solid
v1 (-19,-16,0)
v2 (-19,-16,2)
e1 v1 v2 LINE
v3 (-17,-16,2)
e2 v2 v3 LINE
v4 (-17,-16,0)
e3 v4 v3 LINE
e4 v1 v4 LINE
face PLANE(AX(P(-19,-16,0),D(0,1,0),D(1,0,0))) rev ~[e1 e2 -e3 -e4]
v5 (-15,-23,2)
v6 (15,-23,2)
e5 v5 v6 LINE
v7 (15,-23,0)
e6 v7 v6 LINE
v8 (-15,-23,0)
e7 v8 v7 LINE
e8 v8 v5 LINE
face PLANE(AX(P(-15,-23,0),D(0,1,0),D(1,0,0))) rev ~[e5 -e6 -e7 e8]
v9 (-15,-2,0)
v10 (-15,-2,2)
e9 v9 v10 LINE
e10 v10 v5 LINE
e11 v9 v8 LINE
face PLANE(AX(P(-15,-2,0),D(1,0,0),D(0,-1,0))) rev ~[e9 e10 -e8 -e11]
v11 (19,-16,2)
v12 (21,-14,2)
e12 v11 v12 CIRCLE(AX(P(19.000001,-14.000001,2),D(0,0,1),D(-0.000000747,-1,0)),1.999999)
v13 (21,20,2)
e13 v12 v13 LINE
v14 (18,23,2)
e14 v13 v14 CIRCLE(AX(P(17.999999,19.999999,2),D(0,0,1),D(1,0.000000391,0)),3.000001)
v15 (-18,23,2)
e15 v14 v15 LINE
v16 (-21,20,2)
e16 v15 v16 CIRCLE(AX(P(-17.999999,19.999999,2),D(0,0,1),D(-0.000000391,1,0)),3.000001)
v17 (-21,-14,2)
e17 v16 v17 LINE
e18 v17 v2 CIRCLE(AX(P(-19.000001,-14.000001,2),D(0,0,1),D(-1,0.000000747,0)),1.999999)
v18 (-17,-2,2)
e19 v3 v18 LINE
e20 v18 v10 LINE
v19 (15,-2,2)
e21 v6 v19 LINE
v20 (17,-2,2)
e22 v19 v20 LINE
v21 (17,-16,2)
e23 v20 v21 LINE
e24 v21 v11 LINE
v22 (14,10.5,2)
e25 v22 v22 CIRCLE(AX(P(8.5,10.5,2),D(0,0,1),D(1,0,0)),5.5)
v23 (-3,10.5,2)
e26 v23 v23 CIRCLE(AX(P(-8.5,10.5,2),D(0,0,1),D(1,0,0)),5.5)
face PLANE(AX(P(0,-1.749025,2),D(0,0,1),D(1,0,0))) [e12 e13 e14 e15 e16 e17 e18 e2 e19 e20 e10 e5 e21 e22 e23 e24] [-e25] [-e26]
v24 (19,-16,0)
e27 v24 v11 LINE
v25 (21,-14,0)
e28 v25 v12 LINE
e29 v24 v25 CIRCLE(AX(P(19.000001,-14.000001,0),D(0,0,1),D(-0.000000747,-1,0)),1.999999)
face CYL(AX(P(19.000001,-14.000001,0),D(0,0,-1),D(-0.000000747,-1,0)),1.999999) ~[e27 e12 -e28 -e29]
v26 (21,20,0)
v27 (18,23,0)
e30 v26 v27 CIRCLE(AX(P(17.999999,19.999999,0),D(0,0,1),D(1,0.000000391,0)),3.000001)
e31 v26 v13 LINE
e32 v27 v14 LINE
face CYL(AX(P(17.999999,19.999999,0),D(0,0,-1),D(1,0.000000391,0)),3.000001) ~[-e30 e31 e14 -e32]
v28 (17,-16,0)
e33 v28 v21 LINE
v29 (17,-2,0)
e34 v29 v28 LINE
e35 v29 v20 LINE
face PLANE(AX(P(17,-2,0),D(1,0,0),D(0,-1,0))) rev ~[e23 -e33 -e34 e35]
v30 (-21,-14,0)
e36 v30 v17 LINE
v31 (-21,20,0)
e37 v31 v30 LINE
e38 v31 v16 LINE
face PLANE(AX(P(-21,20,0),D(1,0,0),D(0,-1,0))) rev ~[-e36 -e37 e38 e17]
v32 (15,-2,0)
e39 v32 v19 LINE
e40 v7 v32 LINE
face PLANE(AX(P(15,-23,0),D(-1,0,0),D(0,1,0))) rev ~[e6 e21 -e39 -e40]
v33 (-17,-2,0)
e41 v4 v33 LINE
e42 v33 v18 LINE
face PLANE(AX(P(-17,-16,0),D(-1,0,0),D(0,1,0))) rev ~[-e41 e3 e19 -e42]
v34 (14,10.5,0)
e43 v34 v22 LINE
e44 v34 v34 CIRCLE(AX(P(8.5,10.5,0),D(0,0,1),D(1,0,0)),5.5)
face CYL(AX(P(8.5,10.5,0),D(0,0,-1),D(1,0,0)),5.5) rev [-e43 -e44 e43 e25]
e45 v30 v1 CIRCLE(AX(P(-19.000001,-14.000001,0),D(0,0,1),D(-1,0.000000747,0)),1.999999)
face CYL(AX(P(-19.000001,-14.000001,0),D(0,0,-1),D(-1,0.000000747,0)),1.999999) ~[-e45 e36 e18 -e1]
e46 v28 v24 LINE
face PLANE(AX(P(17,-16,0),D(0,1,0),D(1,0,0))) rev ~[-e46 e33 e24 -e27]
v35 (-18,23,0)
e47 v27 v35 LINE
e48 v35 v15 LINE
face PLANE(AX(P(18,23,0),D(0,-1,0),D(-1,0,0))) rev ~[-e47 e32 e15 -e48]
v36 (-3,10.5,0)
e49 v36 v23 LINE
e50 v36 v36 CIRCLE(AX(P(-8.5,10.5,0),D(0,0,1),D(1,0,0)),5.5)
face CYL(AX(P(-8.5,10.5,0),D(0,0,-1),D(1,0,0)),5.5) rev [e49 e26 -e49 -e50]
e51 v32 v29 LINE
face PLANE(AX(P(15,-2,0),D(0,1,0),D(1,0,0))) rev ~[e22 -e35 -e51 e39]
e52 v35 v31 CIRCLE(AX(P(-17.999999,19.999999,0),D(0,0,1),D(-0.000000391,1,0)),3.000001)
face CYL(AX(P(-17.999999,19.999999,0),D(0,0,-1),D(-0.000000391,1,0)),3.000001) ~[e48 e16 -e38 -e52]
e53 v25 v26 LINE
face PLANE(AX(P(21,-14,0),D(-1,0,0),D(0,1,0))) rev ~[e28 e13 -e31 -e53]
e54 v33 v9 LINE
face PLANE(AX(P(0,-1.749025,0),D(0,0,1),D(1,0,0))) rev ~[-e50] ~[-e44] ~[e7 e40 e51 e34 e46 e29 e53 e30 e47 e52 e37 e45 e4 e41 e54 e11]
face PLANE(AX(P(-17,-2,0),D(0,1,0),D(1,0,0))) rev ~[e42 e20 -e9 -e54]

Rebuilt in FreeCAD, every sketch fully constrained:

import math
import FreeCAD as App
import Part
import Sketcher

doc = App.newDocument("Part")
body = doc.addObject("PartDesign::Body", "Body")

# Sketch on XY plane
sketch1 = body.newObject("Sketcher::SketchObject", "Sketch")
sketch1.AttachmentSupport = (doc.getObject("XY_Plane"), [""])
sketch1.MapMode = "FlatFace"
sketch1.addGeometry([
    Part.ArcOfCircle(Part.Circle(App.Vector(-17.999999, 19.999999, 0), App.Vector(0, 0, 1), 3.000001), math.radians(90.000022), math.radians(179.999978)),  # 0
    Part.LineSegment(App.Vector(-21, 20, 0), App.Vector(-21, -14, 0)),  # 1
    Part.ArcOfCircle(Part.Circle(App.Vector(-19.000001, -14.000001, 0), App.Vector(0, 0, 1), 1.999999), math.radians(179.999957), math.radians(270.000043)),  # 2
    Part.LineSegment(App.Vector(-19, -16, 0), App.Vector(-17, -16, 0)),  # 3
    Part.LineSegment(App.Vector(-17, -16, 0), App.Vector(-17, -2, 0)),  # 4
    Part.LineSegment(App.Vector(-17, -2, 0), App.Vector(-15, -2, 0)),  # 5
    Part.LineSegment(App.Vector(-15, -2, 0), App.Vector(-15, -23, 0)),  # 6
    Part.LineSegment(App.Vector(-15, -23, 0), App.Vector(15, -23, 0)),  # 7
    Part.LineSegment(App.Vector(15, -23, 0), App.Vector(15, -2, 0)),  # 8
    Part.LineSegment(App.Vector(15, -2, 0), App.Vector(17, -2, 0)),  # 9
    Part.LineSegment(App.Vector(17, -2, 0), App.Vector(17, -16, 0)),  # 10
    Part.LineSegment(App.Vector(17, -16, 0), App.Vector(19, -16, 0)),  # 11
    Part.ArcOfCircle(Part.Circle(App.Vector(19.000001, -14.000001, 0), App.Vector(0, 0, 1), 1.999999), math.radians(-90.000043), math.radians(0.000043)),  # 12
    Part.LineSegment(App.Vector(21, -14, 0), App.Vector(21, 20, 0)),  # 13
    Part.ArcOfCircle(Part.Circle(App.Vector(17.999999, 19.999999, 0), App.Vector(0, 0, 1), 3.000001), math.radians(0.000022), math.radians(89.999978)),  # 14
    Part.LineSegment(App.Vector(18, 23, 0), App.Vector(-18, 23, 0)),  # 15
    Part.Circle(App.Vector(-8.5, 10.5, 0), App.Vector(0, 0, 1), 5.5),  # 16
    Part.Circle(App.Vector(8.5, 10.5, 0), App.Vector(0, 0, 1), 5.5),  # 17
], False)
sketch1.addConstraint([
    Sketcher.Constraint("Tangent", 0, 2, 1, 1),
    Sketcher.Constraint("Tangent", 1, 2, 2, 1),
    Sketcher.Constraint("Tangent", 2, 2, 3, 1),
    Sketcher.Constraint("Coincident", 3, 2, 4, 1),
    Sketcher.Constraint("Coincident", 4, 2, 5, 1),
    Sketcher.Constraint("Coincident", 5, 2, 6, 1),
    Sketcher.Constraint("Coincident", 6, 2, 7, 1),
    Sketcher.Constraint("Coincident", 7, 2, 8, 1),
    Sketcher.Constraint("Coincident", 8, 2, 9, 1),
    Sketcher.Constraint("Coincident", 9, 2, 10, 1),
    Sketcher.Constraint("Coincident", 10, 2, 11, 1),
    Sketcher.Constraint("Tangent", 11, 2, 12, 1),
    Sketcher.Constraint("Tangent", 12, 2, 13, 1),
    Sketcher.Constraint("Tangent", 13, 2, 14, 1),
    Sketcher.Constraint("Tangent", 14, 2, 15, 1),
    Sketcher.Constraint("Tangent", 15, 2, 0, 1),
    Sketcher.Constraint("Vertical", 1),
    Sketcher.Constraint("Horizontal", 3),
    Sketcher.Constraint("Vertical", 4),
    Sketcher.Constraint("Horizontal", 5),
    Sketcher.Constraint("Vertical", 6),
    Sketcher.Constraint("Horizontal", 7),
    Sketcher.Constraint("Vertical", 8),
    Sketcher.Constraint("Horizontal", 9),
    Sketcher.Constraint("Vertical", 10),
    Sketcher.Constraint("Horizontal", 11),
    Sketcher.Constraint("Vertical", 13),
    Sketcher.Constraint("Horizontal", 15),
    Sketcher.Constraint("Equal", 2, 12),
    Sketcher.Constraint("Equal", 0, 14),
    Sketcher.Constraint("Equal", 16, 17),
    Sketcher.Constraint("Symmetric", 2, 3, 12, 3, -2),
    Sketcher.Constraint("Symmetric", 16, 3, 17, 3, -2),
    Sketcher.Constraint("Symmetric", 5, 2, 8, 2, -2),
    Sketcher.Constraint("Equal", 3, 5),
    Sketcher.Constraint("Equal", 5, 9),
    Sketcher.Constraint("Diameter", 16, 11.0),
    Sketcher.Constraint("Radius", 0, 3.000001),
    Sketcher.Constraint("Radius", 2, 1.999999),
    Sketcher.Constraint("DistanceX", 3, 1, 3, 2, 2.0),
    Sketcher.Constraint("DistanceX", 7, 1, 7, 2, 30.0),
    Sketcher.Constraint("DistanceY", 1, 2, 1, 1, 34.0),
    Sketcher.Constraint("DistanceY", 4, 1, 4, 2, 14.0),
    Sketcher.Constraint("DistanceY", 6, 2, 6, 1, 21.0),
    Sketcher.Constraint("DistanceY", -1, 1, 0, 3, 19.999999),
    Sketcher.Constraint("DistanceX", 16, 3, 17, 3, 17.0),
    Sketcher.Constraint("DistanceY", -1, 1, 16, 3, 10.5),
])
pad1 = body.newObject("PartDesign::Pad", "Pad")
pad1.Profile = sketch1
pad1.Length = 2

doc.recompute()
